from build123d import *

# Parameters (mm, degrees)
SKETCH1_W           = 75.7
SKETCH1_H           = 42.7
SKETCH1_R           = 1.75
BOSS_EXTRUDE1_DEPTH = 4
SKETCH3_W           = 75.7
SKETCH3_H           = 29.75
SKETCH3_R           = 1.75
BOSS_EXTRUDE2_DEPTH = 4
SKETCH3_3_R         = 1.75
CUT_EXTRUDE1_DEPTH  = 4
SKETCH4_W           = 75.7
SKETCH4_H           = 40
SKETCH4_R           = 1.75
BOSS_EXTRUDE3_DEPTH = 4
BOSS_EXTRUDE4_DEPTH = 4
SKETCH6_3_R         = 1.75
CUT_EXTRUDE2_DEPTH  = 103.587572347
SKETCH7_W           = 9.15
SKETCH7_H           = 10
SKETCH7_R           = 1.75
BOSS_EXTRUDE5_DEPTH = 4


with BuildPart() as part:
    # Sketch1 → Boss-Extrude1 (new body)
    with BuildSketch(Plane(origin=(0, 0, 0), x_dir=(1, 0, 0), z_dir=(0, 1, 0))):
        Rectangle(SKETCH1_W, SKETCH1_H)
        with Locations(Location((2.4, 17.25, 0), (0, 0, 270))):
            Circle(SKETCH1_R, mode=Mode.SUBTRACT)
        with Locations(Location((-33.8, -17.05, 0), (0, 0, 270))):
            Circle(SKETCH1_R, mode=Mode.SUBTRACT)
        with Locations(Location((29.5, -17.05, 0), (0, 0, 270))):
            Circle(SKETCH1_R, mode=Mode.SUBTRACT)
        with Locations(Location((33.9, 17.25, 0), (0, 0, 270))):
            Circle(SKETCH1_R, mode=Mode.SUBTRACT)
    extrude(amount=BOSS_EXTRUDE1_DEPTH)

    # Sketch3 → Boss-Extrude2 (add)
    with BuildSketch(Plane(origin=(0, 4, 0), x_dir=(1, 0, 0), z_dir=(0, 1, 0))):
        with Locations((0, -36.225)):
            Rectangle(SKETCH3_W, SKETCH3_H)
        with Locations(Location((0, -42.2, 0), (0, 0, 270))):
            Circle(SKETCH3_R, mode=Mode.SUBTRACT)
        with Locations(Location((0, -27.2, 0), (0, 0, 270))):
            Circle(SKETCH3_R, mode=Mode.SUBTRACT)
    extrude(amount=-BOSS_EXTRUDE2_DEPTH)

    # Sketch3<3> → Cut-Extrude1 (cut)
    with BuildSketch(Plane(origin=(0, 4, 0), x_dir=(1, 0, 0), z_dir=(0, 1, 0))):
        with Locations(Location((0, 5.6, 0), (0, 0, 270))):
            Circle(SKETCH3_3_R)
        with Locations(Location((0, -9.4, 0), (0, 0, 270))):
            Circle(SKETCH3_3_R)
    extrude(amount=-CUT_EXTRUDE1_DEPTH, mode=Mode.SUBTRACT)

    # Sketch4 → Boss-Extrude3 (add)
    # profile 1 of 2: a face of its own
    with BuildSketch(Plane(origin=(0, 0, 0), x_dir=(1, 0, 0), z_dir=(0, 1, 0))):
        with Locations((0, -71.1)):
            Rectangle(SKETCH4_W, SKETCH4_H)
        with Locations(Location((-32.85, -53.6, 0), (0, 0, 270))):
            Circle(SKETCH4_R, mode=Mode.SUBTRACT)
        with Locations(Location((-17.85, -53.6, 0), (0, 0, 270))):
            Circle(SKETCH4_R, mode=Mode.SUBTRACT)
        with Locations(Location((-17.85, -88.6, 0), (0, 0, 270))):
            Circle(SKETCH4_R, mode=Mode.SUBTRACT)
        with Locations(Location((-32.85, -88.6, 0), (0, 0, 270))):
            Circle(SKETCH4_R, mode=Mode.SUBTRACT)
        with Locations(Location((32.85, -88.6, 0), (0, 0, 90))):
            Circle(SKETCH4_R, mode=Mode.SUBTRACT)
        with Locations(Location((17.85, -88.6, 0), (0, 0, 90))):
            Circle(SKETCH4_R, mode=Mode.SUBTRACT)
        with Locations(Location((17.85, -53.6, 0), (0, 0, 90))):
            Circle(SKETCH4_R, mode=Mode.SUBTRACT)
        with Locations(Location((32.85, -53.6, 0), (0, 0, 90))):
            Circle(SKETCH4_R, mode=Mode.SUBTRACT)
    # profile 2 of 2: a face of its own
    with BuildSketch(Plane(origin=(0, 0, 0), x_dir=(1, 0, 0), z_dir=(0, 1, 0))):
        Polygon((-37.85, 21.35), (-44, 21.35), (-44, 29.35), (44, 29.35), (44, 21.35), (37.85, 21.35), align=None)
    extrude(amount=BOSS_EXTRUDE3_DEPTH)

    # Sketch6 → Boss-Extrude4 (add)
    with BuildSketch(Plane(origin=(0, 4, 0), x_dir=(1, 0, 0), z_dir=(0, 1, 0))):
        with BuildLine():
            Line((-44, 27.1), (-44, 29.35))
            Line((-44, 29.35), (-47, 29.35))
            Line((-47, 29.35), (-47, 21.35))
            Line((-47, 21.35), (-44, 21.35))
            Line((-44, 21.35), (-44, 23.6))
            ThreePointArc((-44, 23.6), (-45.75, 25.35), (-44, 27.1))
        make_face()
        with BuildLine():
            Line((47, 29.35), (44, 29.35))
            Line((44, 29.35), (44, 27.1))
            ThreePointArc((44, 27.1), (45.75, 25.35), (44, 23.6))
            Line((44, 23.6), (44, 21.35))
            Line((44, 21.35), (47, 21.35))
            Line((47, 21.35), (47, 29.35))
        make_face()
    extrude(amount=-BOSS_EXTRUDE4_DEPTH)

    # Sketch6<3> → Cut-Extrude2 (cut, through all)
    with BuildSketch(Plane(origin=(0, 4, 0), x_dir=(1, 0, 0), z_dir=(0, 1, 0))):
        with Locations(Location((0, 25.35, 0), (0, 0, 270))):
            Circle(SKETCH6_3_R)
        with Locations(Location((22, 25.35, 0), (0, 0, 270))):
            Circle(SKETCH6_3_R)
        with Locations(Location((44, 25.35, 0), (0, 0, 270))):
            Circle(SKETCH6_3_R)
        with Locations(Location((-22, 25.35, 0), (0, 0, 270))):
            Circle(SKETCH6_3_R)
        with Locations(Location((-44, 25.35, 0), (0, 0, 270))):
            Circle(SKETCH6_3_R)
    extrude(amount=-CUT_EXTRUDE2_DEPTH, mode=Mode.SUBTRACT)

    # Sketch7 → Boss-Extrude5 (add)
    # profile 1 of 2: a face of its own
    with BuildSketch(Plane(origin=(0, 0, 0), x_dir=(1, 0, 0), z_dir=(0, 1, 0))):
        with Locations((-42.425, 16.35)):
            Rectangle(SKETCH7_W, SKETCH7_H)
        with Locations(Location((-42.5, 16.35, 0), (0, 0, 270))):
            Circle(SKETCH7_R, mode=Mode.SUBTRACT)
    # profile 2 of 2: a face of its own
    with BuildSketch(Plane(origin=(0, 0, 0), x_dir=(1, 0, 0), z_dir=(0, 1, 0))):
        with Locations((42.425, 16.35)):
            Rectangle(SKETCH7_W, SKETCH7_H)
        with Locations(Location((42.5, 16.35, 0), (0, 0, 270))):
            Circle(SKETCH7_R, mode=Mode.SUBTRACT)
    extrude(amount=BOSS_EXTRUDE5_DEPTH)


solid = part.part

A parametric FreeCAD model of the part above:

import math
import FreeCAD as App
import Part
import Sketcher
Q = App.Units.Quantity

doc = App.newDocument("Part")
body = doc.addObject("PartDesign::Body", "Body")

# Sketch on XZ plane
sketch1 = body.newObject("Sketcher::SketchObject", "Sketch")
sketch1.AttachmentSupport = (doc.getObject("XZ_Plane"), [""])
sketch1.MapMode = "FlatFace"
sketch1.addGeometry(Part.LineSegment(App.Vector(-37.9, -21.4, 0), App.Vector(-37.9, 21.4, 0)), False)
sketch1.addGeometry(Part.LineSegment(App.Vector(-37.9, 21.4, 0), App.Vector(37.9, 21.4, 0)), False)
sketch1.addGeometry(Part.LineSegment(App.Vector(37.9, 21.4, 0), App.Vector(37.9, -21.4, 0)), False)
sketch1.addGeometry(Part.LineSegment(App.Vector(37.9, -21.4, 0), App.Vector(-37.9, -21.4, 0)), False)
sketch1.addGeometry(Part.Circle(App.Vector(-33.8, 17.1, 0), App.Vector(0, 0, 1), 1.8), False)
sketch1.addGeometry(Part.Circle(App.Vector(29.5, 17.1, 0), App.Vector(0, 0, 1), 1.8), False)
sketch1.addGeometry(Part.Circle(App.Vector(2.4, -17.2, 0), App.Vector(0, 0, 1), 1.8), False)
sketch1.addGeometry(Part.Circle(App.Vector(33.9, -17.2, 0), App.Vector(0, 0, 1), 1.8), False)
sketch1.addConstraint(Sketcher.Constraint("Coincident", 0, 2, 1, 1))
sketch1.addConstraint(Sketcher.Constraint("Coincident", 1, 2, 2, 1))
sketch1.addConstraint(Sketcher.Constraint("Coincident", 2, 2, 3, 1))
sketch1.addConstraint(Sketcher.Constraint("Coincident", 3, 2, 0, 1))
sketch1.addConstraint(Sketcher.Constraint("Vertical", 0))
sketch1.addConstraint(Sketcher.Constraint("Horizontal", 1))
sketch1.addConstraint(Sketcher.Constraint("Vertical", 2))
sketch1.addConstraint(Sketcher.Constraint("Horizontal", 3))
sketch1.addConstraint(Sketcher.Constraint("Equal", 4, 5))
sketch1.addConstraint(Sketcher.Constraint("Equal", 5, 6))
sketch1.addConstraint(Sketcher.Constraint("Equal", 6, 7))
sketch1.addConstraint(Sketcher.Constraint("Symmetric", 0, 2, 2, 2, -1, 1))
sketch1.addConstraint(Sketcher.Constraint("Horizontal", 4, 3, 5, 3))
sketch1.addConstraint(Sketcher.Constraint("Horizontal", 6, 3, 7, 3))
sketch1.addConstraint(Sketcher.Constraint("Diameter", 4, Q("3.5 mm")))
sketch1.addConstraint(Sketcher.Constraint("DistanceX", 1, 1, 1, 2, Q("75.7 mm")))
sketch1.addConstraint(Sketcher.Constraint("DistanceY", 0, 1, 0, 2, Q("42.7 mm")))
sketch1.addConstraint(Sketcher.Constraint("DistanceX", 4, 3, -1, 1, Q("33.8 mm")))
sketch1.addConstraint(Sketcher.Constraint("DistanceX", -1, 1, 5, 3, Q("29.5 mm")))
sketch1.addConstraint(Sketcher.Constraint("DistanceX", -1, 1, 6, 3, Q("2.4 mm")))
sketch1.addConstraint(Sketcher.Constraint("DistanceX", -1, 1, 7, 3, Q("33.9 mm")))
sketch1.addConstraint(Sketcher.Constraint("DistanceY", 6, 3, 5, 3, Q("34.3 mm")))
sketch1.addConstraint(Sketcher.Constraint("DistanceY", 4, 3, 0, 2, Q("4.3 mm")))
pad1 = body.newObject("PartDesign::Pad", "Pad")
pad1.Profile = sketch1
pad1.Length = 4
pad1.Reversed = True

# Sketch on XZ plane
sketch2 = body.newObject("Sketcher::SketchObject", "Sketch001")
sketch2.AttachmentSupport = (doc.getObject("XZ_Plane"), [""])
sketch2.MapMode = "FlatFace"
sketch2.AttachmentOffset = App.Placement(App.Vector(0, 0, -4), App.Rotation())
sketch2.addGeometry(Part.LineSegment(App.Vector(-37.9, 21.4, 0), App.Vector(-37.9, 51.1, 0)), False)
sketch2.addGeometry(Part.LineSegment(App.Vector(-37.9, 51.1, 0), App.Vector(37.9, 51.1, 0)), False)
sketch2.addGeometry(Part.LineSegment(App.Vector(37.9, 51.1, 0), App.Vector(37.9, 21.4, 0)), False)
sketch2.addGeometry(Part.LineSegment(App.Vector(37.9, 21.4, 0), App.Vector(-37.9, 21.4, 0)), False)
sketch2.addGeometry(Part.Circle(App.Vector(0, 42.2, 0), App.Vector(0, 0, 1), 1.8), False)
sketch2.addGeometry(Part.Circle(App.Vector(0, 27.2, 0), App.Vector(0, 0, 1), 1.8), False)
sketch2.addConstraint(Sketcher.Constraint("Coincident", 0, 2, 1, 1))
sketch2.addConstraint(Sketcher.Constraint("Coincident", 1, 2, 2, 1))
sketch2.addConstraint(Sketcher.Constraint("Coincident", 2, 2, 3, 1))
sketch2.addConstraint(Sketcher.Constraint("Coincident", 3, 2, 0, 1))
sketch2.addConstraint(Sketcher.Constraint("Vertical", 0))
sketch2.addConstraint(Sketcher.Constraint("Horizontal", 1))
sketch2.addConstraint(Sketcher.Constraint("Vertical", 2))
sketch2.addConstraint(Sketcher.Constraint("Horizontal", 3))
sketch2.addConstraint(Sketcher.Constraint("Equal", 4, 5))
sketch2.addConstraint(Sketcher.Constraint("PointOnObject", 4, 3, -2))
sketch2.addConstraint(Sketcher.Constraint("PointOnObject", 5, 3, -2))
sketch2.addConstraint(Sketcher.Constraint("Diameter", 4, Q("3.5 mm")))
sketch2.addConstraint(Sketcher.Constraint("DistanceX", 1, 1, 1, 2, Q("75.7 mm")))
sketch2.addConstraint(Sketcher.Constraint("DistanceY", 5, 3, 4, 3, Q("15 mm")))
sketch2.addConstraint(Sketcher.Constraint("DistanceY", 0, 1, 0, 2, Q("29.75 mm")))
sketch2.addConstraint(Sketcher.Constraint("DistanceY", -1, 1, 4, 3, Q("42.2 mm")))
sketch2.addConstraint(Sketcher.Constraint("DistanceY", -1, 1, 0, 2, Q("51.1 mm")))
sketch2.addConstraint(Sketcher.Constraint("DistanceX", 0, 2, -1, 1, Q("37.85 mm")))
pad2 = body.newObject("PartDesign::Pad", "Pad001")
pad2.Profile = sketch2
pad2.Length = 4

# Sketch on XZ plane
sketch3 = body.newObject("Sketcher::SketchObject", "Sketch002")
sketch3.AttachmentSupport = (doc.getObject("XZ_Plane"), [""])
sketch3.MapMode = "FlatFace"
sketch3.AttachmentOffset = App.Placement(App.Vector(0, 0, -4), App.Rotation())
sketch3.addGeometry(Part.Circle(App.Vector(0, -5.6, 0), App.Vector(0, 0, 1), 1.8), False)
sketch3.addGeometry(Part.Circle(App.Vector(0, 9.4, 0), App.Vector(0, 0, 1), 1.8), False)
sketch3.addConstraint(Sketcher.Constraint("Equal", 0, 1))
sketch3.addConstraint(Sketcher.Constraint("PointOnObject", 0, 3, -2))
sketch3.addConstraint(Sketcher.Constraint("PointOnObject", 1, 3, -2))
sketch3.addConstraint(Sketcher.Constraint("Diameter", 0, Q("3.5 mm")))
sketch3.addConstraint(Sketcher.Constraint("DistanceY", 0, 3, 1, 3, Q("15 mm")))
sketch3.addConstraint(Sketcher.Constraint("DistanceY", 0, 3, -1, 1, Q("5.6 mm")))
pocket1 = body.newObject("PartDesign::Pocket", "Pocket")
pocket1.Profile = sketch3
pocket1.Length = 4
pocket1.Reversed = True

# Sketch on XZ plane
sketch4 = body.newObject("Sketcher::SketchObject", "Sketch003")
sketch4.AttachmentSupport = (doc.getObject("XZ_Plane"), [""])
sketch4.MapMode = "FlatFace"
sketch4.addGeometry(Part.LineSegment(App.Vector(-37.9, 51.1, 0), App.Vector(-37.9, 91.1, 0)), False)
sketch4.addGeometry(Part.LineSegment(App.Vector(-37.9, 91.1, 0), App.Vector(37.9, 91.1, 0)), False)
sketch4.addGeometry(Part.LineSegment(App.Vector(37.9, 91.1, 0), App.Vector(37.9, 51.1, 0)), False)
sketch4.addGeometry(Part.LineSegment(App.Vector(37.9, 51.1, 0), App.Vector(-37.9, 51.1, 0)), False)
sketch4.addGeometry(Part.Circle(App.Vector(-32.9, 88.6, 0), App.Vector(0, 0, 1), 1.8), False)
sketch4.addGeometry(Part.Circle(App.Vector(-17.9, 88.6, 0), App.Vector(0, 0, 1), 1.8), False)
sketch4.addGeometry(Part.Circle(App.Vector(17.9, 88.6, 0), App.Vector(0, 0, 1), 1.8), False)
sketch4.addGeometry(Part.Circle(App.Vector(32.9, 88.6, 0), App.Vector(0, 0, 1), 1.8), False)
sketch4.addGeometry(Part.Circle(App.Vector(-32.9, 53.6, 0), App.Vector(0, 0, 1), 1.8), False)
sketch4.addGeometry(Part.Circle(App.Vector(-17.9, 53.6, 0), App.Vector(0, 0, 1), 1.8), False)
sketch4.addGeometry(Part.Circle(App.Vector(17.9, 53.6, 0), App.Vector(0, 0, 1), 1.8), False)
sketch4.addGeometry(Part.Circle(App.Vector(32.9, 53.6, 0), App.Vector(0, 0, 1), 1.8), False)
sketch4.addGeometry(Part.LineSegment(App.Vector(-44, -21.4, 0), App.Vector(44, -21.4, 0)), False)
sketch4.addGeometry(Part.LineSegment(App.Vector(44, -21.4, 0), App.Vector(44, -29.4, 0)), False)
sketch4.addGeometry(Part.LineSegment(App.Vector(44, -29.4, 0), App.Vector(-44, -29.4, 0)), False)
sketch4.addGeometry(Part.LineSegment(App.Vector(-44, -29.4, 0), App.Vector(-44, -21.4, 0)), False)
sketch4.addConstraint(Sketcher.Constraint("Coincident", 0, 2, 1, 1))
sketch4.addConstraint(Sketcher.Constraint("Coincident", 1, 2, 2, 1))
sketch4.addConstraint(Sketcher.Constraint("Coincident", 2, 2, 3, 1))
sketch4.addConstraint(Sketcher.Constraint("Coincident", 3, 2, 0, 1))
sketch4.addConstraint(Sketcher.Constraint("Coincident", 12, 2, 13, 1))
sketch4.addConstraint(Sketcher.Constraint("Coincident", 13, 2, 14, 1))
sketch4.addConstraint(Sketcher.Constraint("Coincident", 14, 2, 15, 1))
sketch4.addConstraint(Sketcher.Constraint("Coincident", 15, 2, 12, 1))
sketch4.addConstraint(Sketcher.Constraint("Vertical", 0))
sketch4.addConstraint(Sketcher.Constraint("Horizontal", 1))
sketch4.addConstraint(Sketcher.Constraint("Vertical", 2))
sketch4.addConstraint(Sketcher.Constraint("Horizontal", 3))
sketch4.addConstraint(Sketcher.Constraint("Horizontal", 12))
sketch4.addConstraint(Sketcher.Constraint("Vertical", 13))
sketch4.addConstraint(Sketcher.Constraint("Horizontal", 14))
sketch4.addConstraint(Sketcher.Constraint("Vertical", 15))
sketch4.addConstraint(Sketcher.Constraint("Equal", 4, 5))
sketch4.addConstraint(Sketcher.Constraint("Equal", 5, 6))
sketch4.addConstraint(Sketcher.Constraint("Equal", 6, 7))
sketch4.addConstraint(Sketcher.Constraint("Equal", 7, 8))
sketch4.addConstraint(Sketcher.Constraint("Equal", 8, 9))
sketch4.addConstraint(Sketcher.Constraint("Equal", 9, 10))
sketch4.addConstraint(Sketcher.Constraint("Equal", 10, 11))
sketch4.addConstraint(Sketcher.Constraint("Symmetric", 5, 3, 6, 3, -2))
sketch4.addConstraint(Sketcher.Constraint("Symmetric", 4, 3, 7, 3, -2))
sketch4.addConstraint(Sketcher.Constraint("Symmetric", 9, 3, 10, 3, -2))
sketch4.addConstraint(Sketcher.Constraint("Symmetric", 8, 3, 11, 3, -2))
sketch4.addConstraint(Sketcher.Constraint("Horizontal", 4, 3, 5, 3))
sketch4.addConstraint(Sketcher.Constraint("Horizontal", 8, 3, 9, 3))
sketch4.addConstraint(Sketcher.Constraint("Vertical", 4, 3, 8, 3))
sketch4.addConstraint(Sketcher.Constraint("Vertical", 5, 3, 9, 3))
sketch4.addConstraint(Sketcher.Constraint("Diameter", 4, Q("3.5 mm")))
sketch4.addConstraint(Sketcher.Constraint("DistanceX", 12, 1, 12, 2, Q("88 mm")))
sketch4.addConstraint(Sketcher.Constraint("DistanceY", 0, 1, 0, 2, Q("40 mm")))
sketch4.addConstraint(Sketcher.Constraint("DistanceY", 13, 2, 13, 1, Q("8 mm")))
sketch4.addConstraint(Sketcher.Constraint("DistanceX", 1, 1, 1, 2, Q("75.7 mm")))
sketch4.addConstraint(Sketcher.Constraint("DistanceX", -1, 1, 12, 2, Q("44 mm")))
sketch4.addConstraint(Sketcher.Constraint("DistanceX", 4, 3, 5, 3, Q("15 mm")))
sketch4.addConstraint(Sketcher.Constraint("DistanceY", 8, 3, 4, 3, Q("35 mm")))
sketch4.addConstraint(Sketcher.Constraint("DistanceX", 0, 2, 4, 3, Q("5 mm")))
sketch4.addConstraint(Sketcher.Constraint("DistanceX", 7, 3, 1, 2, Q("5 mm")))
sketch4.addConstraint(Sketcher.Constraint("DistanceY", -1, 1, 4, 3, Q("88.6 mm")))
sketch4.addConstraint(Sketcher.Constraint("DistanceY", -1, 1, 0, 2, Q("91.1 mm")))
sketch4.addConstraint(Sketcher.Constraint("DistanceY", 12, 2, -1, 1, Q("21.35 mm")))
pad3 = body.newObject("PartDesign::Pad", "Pad002")
pad3.Profile = sketch4
pad3.Length = 4
pad3.Reversed = True

# Sketch on XZ plane
sketch5 = body.newObject("Sketcher::SketchObject", "Sketch004")
sketch5.AttachmentSupport = (doc.getObject("XZ_Plane"), [""])
sketch5.MapMode = "FlatFace"
sketch5.AttachmentOffset = App.Placement(App.Vector(0, 0, -4), App.Rotation())
sketch5.addGeometry(Part.LineSegment(App.Vector(-44, -27.1, 0), App.Vector(-44, -29.4, 0)), False)
sketch5.addGeometry(Part.LineSegment(App.Vector(-44, -29.4, 0), App.Vector(-47, -29.4, 0)), False)
sketch5.addGeometry(Part.LineSegment(App.Vector(-47, -29.4, 0), App.Vector(-47, -21.4, 0)), False)
sketch5.addGeometry(Part.LineSegment(App.Vector(-47, -21.4, 0), App.Vector(-44, -21.4, 0)), False)
sketch5.addGeometry(Part.LineSegment(App.Vector(-44, -21.4, 0), App.Vector(-44, -23.6, 0)), False)
sketch5.addGeometry(Part.ArcOfCircle(Part.Circle(App.Vector(-44, -25.4, 0), App.Vector(0, 0, 1), 1.8), math.radians(90), math.radians(270)), False)
sketch5.addGeometry(Part.LineSegment(App.Vector(47, -29.4, 0), App.Vector(44, -29.4, 0)), False)
sketch5.addGeometry(Part.LineSegment(App.Vector(44, -29.4, 0), App.Vector(44, -27.1, 0)), False)
sketch5.addGeometry(Part.ArcOfCircle(Part.Circle(App.Vector(44, -25.4, 0), App.Vector(0, 0, 1), 1.8), math.radians(-90), math.radians(90)), False)
sketch5.addGeometry(Part.LineSegment(App.Vector(44, -23.6, 0), App.Vector(44, -21.4, 0)), False)
sketch5.addGeometry(Part.LineSegment(App.Vector(44, -21.4, 0), App.Vector(47, -21.4, 0)), False)
sketch5.addGeometry(Part.LineSegment(App.Vector(47, -21.4, 0), App.Vector(47, -29.4, 0)), False)
sketch5.addConstraint(Sketcher.Constraint("Coincident", 0, 2, 1, 1))
sketch5.addConstraint(Sketcher.Constraint("Coincident", 1, 2, 2, 1))
sketch5.addConstraint(Sketcher.Constraint("Coincident", 2, 2, 3, 1))
sketch5.addConstraint(Sketcher.Constraint("Coincident", 3, 2, 4, 1))
sketch5.addConstraint(Sketcher.Constraint("Coincident", 4, 2, 5, 1))
sketch5.addConstraint(Sketcher.Constraint("Coincident", 5, 2, 0, 1))
sketch5.addConstraint(Sketcher.Constraint("Coincident", 6, 2, 7, 1))
sketch5.addConstraint(Sketcher.Constraint("Coincident", 7, 2, 8, 1))
sketch5.addConstraint(Sketcher.Constraint("Coincident", 8, 2, 9, 1))
sketch5.addConstraint(Sketcher.Constraint("Coincident", 9, 2, 10, 1))
sketch5.addConstraint(Sketcher.Constraint("Coincident", 10, 2, 11, 1))
sketch5.addConstraint(Sketcher.Constraint("Coincident", 11, 2, 6, 1))
sketch5.addConstraint(Sketcher.Constraint("Vertical", 0))
sketch5.addConstraint(Sketcher.Constraint("Horizontal", 1))
sketch5.addConstraint(Sketcher.Constraint("Vertical", 2))
sketch5.addConstraint(Sketcher.Constraint("Horizontal", 3))
sketch5.addConstraint(Sketcher.Constraint("Vertical", 4))
sketch5.addConstraint(Sketcher.Constraint("Horizontal", 6))
sketch5.addConstraint(Sketcher.Constraint("Vertical", 7))
sketch5.addConstraint(Sketcher.Constraint("Vertical", 9))
sketch5.addConstraint(Sketcher.Constraint("Horizontal", 10))
sketch5.addConstraint(Sketcher.Constraint("Vertical", 11))
sketch5.addConstraint(Sketcher.Constraint("Equal", 5, 8))
sketch5.addConstraint(Sketcher.Constraint("Symmetric", 5, 3, 8, 3, -2))
sketch5.addConstraint(Sketcher.Constraint("Symmetric", 0, 2, 6, 2, -2))
sketch5.addConstraint(Sketcher.Constraint("Symmetric", 3, 2, 9, 2, -2))
sketch5.addConstraint(Sketcher.Constraint("Vertical", 5, 3, 0, 2))
sketch5.addConstraint(Sketcher.Constraint("Vertical", 0, 2, 3, 2))
sketch5.addConstraint(Sketcher.Constraint("Equal", 3, 6))
sketch5.addConstraint(Sketcher.Constraint("Equal", 0, 4))
sketch5.addConstraint(Sketcher.Constraint("DistanceX", 1, 2, 1, 1, Q("3 mm")))
sketch5.addConstraint(Sketcher.Constraint("DistanceY", 2, 1, 2, 2, Q("8 mm")))
sketch5.addConstraint(Sketcher.Constraint("Radius", 5, Q("1.75 mm")))
sketch5.addConstraint(Sketcher.Constraint("DistanceX", 5, 3, -1, 1, Q("44 mm")))
sketch5.addConstraint(Sketcher.Constraint("DistanceY", 4, 2, -1, 1, Q("23.6 mm")))
pad4 = body.newObject("PartDesign::Pad", "Pad003")
pad4.Profile = sketch5
pad4.Length = 4

# Sketch on XZ plane
sketch6 = body.newObject("Sketcher::SketchObject", "Sketch005")
sketch6.AttachmentSupport = (doc.getObject("XZ_Plane"), [""])
sketch6.MapMode = "FlatFace"
sketch6.AttachmentOffset = App.Placement(App.Vector(0, 0, -4), App.Rotation())
sketch6.addGeometry(Part.Circle(App.Vector(0, -25.4, 0), App.Vector(0, 0, 1), 1.8), False)
sketch6.addGeometry(Part.Circle(App.Vector(22, -25.4, 0), App.Vector(0, 0, 1), 1.8), False)
sketch6.addGeometry(Part.Circle(App.Vector(44, -25.4, 0), App.Vector(0, 0, 1), 1.8), False)
sketch6.addGeometry(Part.Circle(App.Vector(-22, -25.4, 0), App.Vector(0, 0, 1), 1.8), False)
sketch6.addGeometry(Part.Circle(App.Vector(-44, -25.4, 0), App.Vector(0, 0, 1), 1.8), False)
sketch6.addConstraint(Sketcher.Constraint("Equal", 0, 1))
sketch6.addConstraint(Sketcher.Constraint("Equal", 1, 2))
sketch6.addConstraint(Sketcher.Constraint("Equal", 2, 3))
sketch6.addConstraint(Sketcher.Constraint("Equal", 3, 4))
sketch6.addConstraint(Sketcher.Constraint("Symmetric", 1, 3, 3, 3, -2))
sketch6.addConstraint(Sketcher.Constraint("Symmetric", 2, 3, 4, 3, -2))
sketch6.addConstraint(Sketcher.Constraint("PointOnObject", 0, 3, -2))
sketch6.addConstraint(Sketcher.Constraint("Horizontal", 0, 3, 1, 3))
sketch6.addConstraint(Sketcher.Constraint("Horizontal", 1, 3, 2, 3))
sketch6.addConstraint(Sketcher.Constraint("Diameter", 0, Q("3.5 mm")))
sketch6.addConstraint(Sketcher.Constraint("DistanceX", -1, 1, 1, 3, Q("22 mm")))
sketch6.addConstraint(Sketcher.Constraint("DistanceX", -1, 1, 2, 3, Q("44 mm")))
sketch6.addConstraint(Sketcher.Constraint("DistanceY", 0, 3, -1, 1, Q("25.35 mm")))
pocket2 = body.newObject("PartDesign::Pocket", "Pocket001")
pocket2.Profile = sketch6
pocket2.Type = "ThroughAll"
pocket2.Reversed = True

# Sketch on XZ plane
sketch7 = body.newObject("Sketcher::SketchObject", "Sketch006")
sketch7.AttachmentSupport = (doc.getObject("XZ_Plane"), [""])
sketch7.MapMode = "FlatFace"
sketch7.addGeometry(Part.LineSegment(App.Vector(-47, -21.4, 0), App.Vector(-47, -11.3, 0)), False)
sketch7.addGeometry(Part.LineSegment(App.Vector(-47, -11.3, 0), App.Vector(-37.9, -11.3, 0)), False)
sketch7.addGeometry(Part.LineSegment(App.Vector(-37.9, -11.3, 0), App.Vector(-37.9, -21.4, 0)), False)
sketch7.addGeometry(Part.LineSegment(App.Vector(-37.9, -21.4, 0), App.Vector(-47, -21.4, 0)), False)
sketch7.addGeometry(Part.Circle(App.Vector(-42.5, -16.4, 0), App.Vector(0, 0, 1), 1.8), False)
sketch7.addGeometry(Part.LineSegment(App.Vector(37.9, -21.4, 0), App.Vector(37.9, -11.3, 0)), False)
sketch7.addGeometry(Part.LineSegment(App.Vector(37.9, -11.3, 0), App.Vector(47, -11.3, 0)), False)
sketch7.addGeometry(Part.LineSegment(App.Vector(47, -11.3, 0), App.Vector(47, -21.4, 0)), False)
sketch7.addGeometry(Part.LineSegment(App.Vector(47, -21.4, 0), App.Vector(37.9, -21.4, 0)), False)
sketch7.addGeometry(Part.Circle(App.Vector(42.5, -16.4, 0), App.Vector(0, 0, 1), 1.8), False)
sketch7.addConstraint(Sketcher.Constraint("Coincident", 0, 2, 1, 1))
sketch7.addConstraint(Sketcher.Constraint("Coincident", 1, 2, 2, 1))
sketch7.addConstraint(Sketcher.Constraint("Coincident", 2, 2, 3, 1))
sketch7.addConstraint(Sketcher.Constraint("Coincident", 3, 2, 0, 1))
sketch7.addConstraint(Sketcher.Constraint("Coincident", 5, 2, 6, 1))
sketch7.addConstraint(Sketcher.Constraint("Coincident", 6, 2, 7, 1))
sketch7.addConstraint(Sketcher.Constraint("Coincident", 7, 2, 8, 1))
sketch7.addConstraint(Sketcher.Constraint("Coincident", 8, 2, 5, 1))
sketch7.addConstraint(Sketcher.Constraint("Vertical", 0))
sketch7.addConstraint(Sketcher.Constraint("Horizontal", 1))
sketch7.addConstraint(Sketcher.Constraint("Vertical", 2))
sketch7.addConstraint(Sketcher.Constraint("Horizontal", 3))
sketch7.addConstraint(Sketcher.Constraint("Vertical", 5))
sketch7.addConstraint(Sketcher.Constraint("Horizontal", 6))
sketch7.addConstraint(Sketcher.Constraint("Vertical", 7))
sketch7.addConstraint(Sketcher.Constraint("Horizontal", 8))
sketch7.addConstraint(Sketcher.Constraint("Equal", 4, 9))
sketch7.addConstraint(Sketcher.Constraint("Symmetric", 4, 3, 9, 3, -2))
sketch7.addConstraint(Sketcher.Constraint("Symmetric", 1, 2, 5, 2, -2))
sketch7.addConstraint(Sketcher.Constraint("Symmetric", 3, 2, 7, 2, -2))
sketch7.addConstraint(Sketcher.Constraint("Diameter", 4, Q("3.5 mm")))
sketch7.addConstraint(Sketcher.Constraint("DistanceY", 0, 1, 0, 2, Q("10 mm")))
sketch7.addConstraint(Sketcher.Constraint("DistanceX", 0, 2, -1, 1, Q("47 mm")))
sketch7.addConstraint(Sketcher.Constraint("DistanceX", 4, 3, 9, 3, Q("85 mm")))
sketch7.addConstraint(Sketcher.Constraint("DistanceY", 4, 3, 0, 2, Q("5 mm")))
sketch7.addConstraint(Sketcher.Constraint("DistanceX", 1, 1, 1, 2, Q("9.15 mm")))
sketch7.addConstraint(Sketcher.Constraint("DistanceY", 4, 3, -1, 1, Q("16.35 mm")))
pad5 = body.newObject("PartDesign::Pad", "Pad004")
pad5.Profile = sketch7
pad5.Length = 4
pad5.Reversed = True

doc.recompute()
